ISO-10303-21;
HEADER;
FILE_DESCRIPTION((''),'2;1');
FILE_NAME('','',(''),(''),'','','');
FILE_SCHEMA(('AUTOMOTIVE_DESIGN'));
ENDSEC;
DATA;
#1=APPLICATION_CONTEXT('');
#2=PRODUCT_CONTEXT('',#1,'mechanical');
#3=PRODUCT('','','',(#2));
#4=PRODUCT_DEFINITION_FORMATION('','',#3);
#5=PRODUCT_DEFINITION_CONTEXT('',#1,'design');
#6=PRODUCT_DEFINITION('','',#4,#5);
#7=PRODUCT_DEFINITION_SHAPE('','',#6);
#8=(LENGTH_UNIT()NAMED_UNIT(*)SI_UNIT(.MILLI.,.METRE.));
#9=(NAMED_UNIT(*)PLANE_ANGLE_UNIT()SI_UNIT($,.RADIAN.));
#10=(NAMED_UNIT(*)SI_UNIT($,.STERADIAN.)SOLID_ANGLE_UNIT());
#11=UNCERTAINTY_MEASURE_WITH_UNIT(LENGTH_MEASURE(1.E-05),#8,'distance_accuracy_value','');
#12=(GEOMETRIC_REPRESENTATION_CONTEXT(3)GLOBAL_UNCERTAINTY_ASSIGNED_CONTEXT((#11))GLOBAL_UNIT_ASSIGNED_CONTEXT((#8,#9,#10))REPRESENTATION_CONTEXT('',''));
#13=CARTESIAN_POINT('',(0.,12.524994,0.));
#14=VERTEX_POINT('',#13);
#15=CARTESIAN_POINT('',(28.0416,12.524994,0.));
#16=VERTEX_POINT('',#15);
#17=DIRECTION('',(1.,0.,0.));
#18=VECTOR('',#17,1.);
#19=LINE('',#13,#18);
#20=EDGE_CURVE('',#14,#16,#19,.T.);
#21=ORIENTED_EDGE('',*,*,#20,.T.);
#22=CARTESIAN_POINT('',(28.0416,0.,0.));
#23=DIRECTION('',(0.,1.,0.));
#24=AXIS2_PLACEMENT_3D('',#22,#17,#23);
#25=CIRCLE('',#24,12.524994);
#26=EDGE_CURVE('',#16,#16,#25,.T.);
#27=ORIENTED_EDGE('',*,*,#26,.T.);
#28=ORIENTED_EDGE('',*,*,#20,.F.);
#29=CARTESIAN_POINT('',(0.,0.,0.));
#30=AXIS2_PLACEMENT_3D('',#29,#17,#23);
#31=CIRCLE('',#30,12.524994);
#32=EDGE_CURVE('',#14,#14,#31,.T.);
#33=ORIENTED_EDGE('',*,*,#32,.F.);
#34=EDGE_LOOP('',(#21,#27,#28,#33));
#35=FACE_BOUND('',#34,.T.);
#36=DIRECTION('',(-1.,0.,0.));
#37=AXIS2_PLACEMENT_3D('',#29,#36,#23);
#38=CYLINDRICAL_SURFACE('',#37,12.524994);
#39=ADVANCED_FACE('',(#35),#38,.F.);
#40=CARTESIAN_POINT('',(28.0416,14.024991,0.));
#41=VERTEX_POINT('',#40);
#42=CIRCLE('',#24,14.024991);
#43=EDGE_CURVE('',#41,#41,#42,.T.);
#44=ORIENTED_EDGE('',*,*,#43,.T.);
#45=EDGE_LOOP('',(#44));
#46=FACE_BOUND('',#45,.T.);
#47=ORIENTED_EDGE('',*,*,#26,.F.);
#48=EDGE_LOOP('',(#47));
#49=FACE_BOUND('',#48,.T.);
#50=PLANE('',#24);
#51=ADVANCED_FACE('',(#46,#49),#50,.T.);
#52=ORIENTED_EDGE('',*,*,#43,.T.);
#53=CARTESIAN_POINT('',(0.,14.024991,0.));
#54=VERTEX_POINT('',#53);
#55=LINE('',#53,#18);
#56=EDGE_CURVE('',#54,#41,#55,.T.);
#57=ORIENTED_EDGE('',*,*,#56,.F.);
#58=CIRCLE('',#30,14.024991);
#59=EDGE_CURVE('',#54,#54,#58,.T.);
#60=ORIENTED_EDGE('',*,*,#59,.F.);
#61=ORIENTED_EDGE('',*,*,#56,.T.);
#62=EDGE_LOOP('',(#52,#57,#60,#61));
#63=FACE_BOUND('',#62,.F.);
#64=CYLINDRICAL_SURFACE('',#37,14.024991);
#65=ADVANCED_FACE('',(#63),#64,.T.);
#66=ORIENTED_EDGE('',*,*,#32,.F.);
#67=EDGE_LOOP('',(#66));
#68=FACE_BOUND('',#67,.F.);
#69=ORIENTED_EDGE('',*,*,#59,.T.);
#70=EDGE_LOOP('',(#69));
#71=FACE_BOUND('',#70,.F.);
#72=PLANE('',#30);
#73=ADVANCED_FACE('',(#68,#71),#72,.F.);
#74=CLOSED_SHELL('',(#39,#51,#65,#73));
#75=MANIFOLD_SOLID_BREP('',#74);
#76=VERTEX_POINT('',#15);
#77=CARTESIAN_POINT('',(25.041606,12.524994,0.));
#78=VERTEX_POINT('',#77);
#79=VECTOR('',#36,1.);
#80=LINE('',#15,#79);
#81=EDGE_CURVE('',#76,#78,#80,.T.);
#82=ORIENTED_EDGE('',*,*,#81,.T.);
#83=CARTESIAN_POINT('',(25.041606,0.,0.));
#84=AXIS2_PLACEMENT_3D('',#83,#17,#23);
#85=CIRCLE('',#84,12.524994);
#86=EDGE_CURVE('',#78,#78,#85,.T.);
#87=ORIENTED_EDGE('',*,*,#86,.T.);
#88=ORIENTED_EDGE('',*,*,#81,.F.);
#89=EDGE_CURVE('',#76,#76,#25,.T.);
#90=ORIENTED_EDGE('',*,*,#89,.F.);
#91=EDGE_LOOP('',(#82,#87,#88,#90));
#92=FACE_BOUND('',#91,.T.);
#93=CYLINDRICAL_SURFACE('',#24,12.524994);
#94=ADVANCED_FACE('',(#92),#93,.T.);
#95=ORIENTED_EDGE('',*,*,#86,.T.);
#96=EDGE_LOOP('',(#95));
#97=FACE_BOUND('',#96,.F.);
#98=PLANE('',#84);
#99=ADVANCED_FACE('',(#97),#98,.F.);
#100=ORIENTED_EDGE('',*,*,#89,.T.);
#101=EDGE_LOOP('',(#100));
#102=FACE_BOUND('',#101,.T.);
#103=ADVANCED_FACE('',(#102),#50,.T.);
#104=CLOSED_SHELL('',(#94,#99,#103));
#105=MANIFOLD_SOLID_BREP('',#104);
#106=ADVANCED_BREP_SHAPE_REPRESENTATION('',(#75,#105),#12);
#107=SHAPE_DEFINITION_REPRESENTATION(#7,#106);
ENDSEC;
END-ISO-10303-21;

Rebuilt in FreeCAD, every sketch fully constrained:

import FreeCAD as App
import Part
import Sketcher
Q = App.Units.Quantity

doc = App.newDocument("Part")
body = doc.addObject("PartDesign::Body", "Body")

# Sketch on YZ plane
sketch1 = body.newObject("Sketcher::SketchObject", "Sketch")
sketch1.AttachmentSupport = (doc.getObject("YZ_Plane"), [""])
sketch1.MapMode = "FlatFace"
sketch1.addGeometry(Part.Circle(App.Vector(0, 0, 0), App.Vector(0, 0, 1), 14), False)
sketch1.addGeometry(Part.Circle(App.Vector(0, 0, 0), App.Vector(0, 0, 1), 13), False)
sketch1.addConstraint(Sketcher.Constraint("Coincident", 0, 3, -1, 1))
sketch1.addConstraint(Sketcher.Constraint("Coincident", 1, 3, -1, 1))
sketch1.addConstraint(Sketcher.Constraint("Diameter", 0, Q("28.049982 mm")))
sketch1.addConstraint(Sketcher.Constraint("Diameter", 1, Q("25.049988 mm")))
pad1 = body.newObject("PartDesign::Pad", "Pad")
pad1.Profile = sketch1
pad1.Length = Q("1.104 in")
body2 = doc.addObject("PartDesign::Body", "Body001")

# Sketch on YZ plane
sketch2 = body2.newObject("Sketcher::SketchObject", "Sketch001")
sketch2.AttachmentSupport = (doc.getObject("YZ_Plane001"), [""])
sketch2.MapMode = "FlatFace"
sketch2.AttachmentOffset = App.Placement(App.Vector(0, 0, 1.104 * 25.4), App.Rotation())
sketch2.addGeometry(Part.Circle(App.Vector(0, 0, 0), App.Vector(0, 0, 1), 13), False)
sketch2.addConstraint(Sketcher.Constraint("Coincident", 0, 3, -1, 1))
sketch2.addConstraint(Sketcher.Constraint("Diameter", 0, Q("25.049988 mm")))
pad2 = body2.newObject("PartDesign::Pad", "Pad001")
pad2.Profile = sketch2
pad2.Length = 2.999994
pad2.Reversed = True

doc.recompute()
